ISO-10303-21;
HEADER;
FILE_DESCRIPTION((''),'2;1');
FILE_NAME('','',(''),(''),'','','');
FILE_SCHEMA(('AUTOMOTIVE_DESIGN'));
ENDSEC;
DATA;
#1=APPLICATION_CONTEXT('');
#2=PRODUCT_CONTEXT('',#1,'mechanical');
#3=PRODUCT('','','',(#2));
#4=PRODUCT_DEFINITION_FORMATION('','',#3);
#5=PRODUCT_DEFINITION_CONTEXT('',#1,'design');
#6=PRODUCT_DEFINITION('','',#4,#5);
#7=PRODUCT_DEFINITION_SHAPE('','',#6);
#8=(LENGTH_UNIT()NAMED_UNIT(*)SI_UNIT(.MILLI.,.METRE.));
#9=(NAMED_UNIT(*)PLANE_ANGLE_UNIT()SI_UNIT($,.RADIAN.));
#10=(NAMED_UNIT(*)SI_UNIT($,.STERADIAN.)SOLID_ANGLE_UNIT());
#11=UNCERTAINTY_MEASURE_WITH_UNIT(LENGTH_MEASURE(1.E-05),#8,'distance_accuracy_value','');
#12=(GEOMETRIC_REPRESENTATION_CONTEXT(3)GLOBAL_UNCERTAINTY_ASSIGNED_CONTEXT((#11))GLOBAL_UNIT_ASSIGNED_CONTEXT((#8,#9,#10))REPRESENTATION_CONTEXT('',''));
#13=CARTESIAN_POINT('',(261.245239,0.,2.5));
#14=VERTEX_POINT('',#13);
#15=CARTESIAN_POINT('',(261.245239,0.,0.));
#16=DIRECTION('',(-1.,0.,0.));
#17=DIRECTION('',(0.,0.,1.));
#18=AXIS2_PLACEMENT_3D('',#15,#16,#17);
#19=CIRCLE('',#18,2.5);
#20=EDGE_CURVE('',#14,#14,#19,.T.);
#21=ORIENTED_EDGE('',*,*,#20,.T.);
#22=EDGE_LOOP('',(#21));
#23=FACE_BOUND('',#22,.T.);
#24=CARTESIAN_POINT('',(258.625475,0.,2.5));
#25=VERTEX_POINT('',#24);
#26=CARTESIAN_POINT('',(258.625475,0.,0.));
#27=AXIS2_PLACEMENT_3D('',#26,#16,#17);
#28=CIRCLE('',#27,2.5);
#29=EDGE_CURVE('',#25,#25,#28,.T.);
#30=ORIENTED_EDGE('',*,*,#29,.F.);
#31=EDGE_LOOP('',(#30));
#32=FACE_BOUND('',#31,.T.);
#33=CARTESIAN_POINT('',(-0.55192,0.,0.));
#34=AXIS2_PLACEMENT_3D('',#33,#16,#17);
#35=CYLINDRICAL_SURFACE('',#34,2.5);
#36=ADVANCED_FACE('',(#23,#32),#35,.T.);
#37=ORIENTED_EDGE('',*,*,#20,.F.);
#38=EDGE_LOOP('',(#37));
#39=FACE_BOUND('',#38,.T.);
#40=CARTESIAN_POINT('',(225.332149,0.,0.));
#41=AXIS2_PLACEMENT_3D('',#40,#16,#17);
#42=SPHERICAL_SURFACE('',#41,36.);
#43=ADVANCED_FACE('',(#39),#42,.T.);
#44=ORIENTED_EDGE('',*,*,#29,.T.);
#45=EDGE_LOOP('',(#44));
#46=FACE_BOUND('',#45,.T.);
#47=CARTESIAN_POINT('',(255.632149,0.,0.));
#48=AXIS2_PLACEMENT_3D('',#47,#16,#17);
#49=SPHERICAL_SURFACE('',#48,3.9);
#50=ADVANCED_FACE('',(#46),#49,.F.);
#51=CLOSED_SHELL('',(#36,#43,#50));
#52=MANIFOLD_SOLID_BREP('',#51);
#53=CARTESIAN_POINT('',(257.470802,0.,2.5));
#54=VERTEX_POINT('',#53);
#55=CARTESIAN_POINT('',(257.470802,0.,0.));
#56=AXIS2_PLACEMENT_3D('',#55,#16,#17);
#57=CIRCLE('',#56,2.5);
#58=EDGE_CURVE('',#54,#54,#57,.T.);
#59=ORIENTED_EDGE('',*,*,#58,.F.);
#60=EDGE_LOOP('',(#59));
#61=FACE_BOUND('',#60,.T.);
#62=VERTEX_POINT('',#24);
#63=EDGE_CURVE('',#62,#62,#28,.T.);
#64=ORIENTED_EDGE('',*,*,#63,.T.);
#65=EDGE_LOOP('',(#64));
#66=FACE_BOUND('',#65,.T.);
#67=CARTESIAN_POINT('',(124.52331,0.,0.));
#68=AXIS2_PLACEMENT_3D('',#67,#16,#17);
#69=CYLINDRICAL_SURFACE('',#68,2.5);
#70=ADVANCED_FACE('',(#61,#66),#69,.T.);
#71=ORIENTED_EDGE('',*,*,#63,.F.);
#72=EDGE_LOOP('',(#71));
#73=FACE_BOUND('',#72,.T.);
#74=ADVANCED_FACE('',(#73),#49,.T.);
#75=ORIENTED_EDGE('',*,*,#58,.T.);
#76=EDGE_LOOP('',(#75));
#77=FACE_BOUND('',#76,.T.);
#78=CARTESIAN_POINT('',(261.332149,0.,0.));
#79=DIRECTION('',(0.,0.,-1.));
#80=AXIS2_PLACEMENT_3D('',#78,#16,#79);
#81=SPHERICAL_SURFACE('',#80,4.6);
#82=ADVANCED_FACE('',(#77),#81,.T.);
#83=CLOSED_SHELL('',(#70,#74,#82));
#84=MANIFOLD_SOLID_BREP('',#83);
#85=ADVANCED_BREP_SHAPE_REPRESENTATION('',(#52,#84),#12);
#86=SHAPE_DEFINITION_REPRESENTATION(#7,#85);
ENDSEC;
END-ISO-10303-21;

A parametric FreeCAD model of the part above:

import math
import FreeCAD as App
import Part
import Sketcher
from FreeCAD import Vector
Q = App.Units.Quantity

doc = App.newDocument("Part")
params = doc.addObject("Spreadsheet::Sheet", "Params")
for row, (alias, value) in enumerate([
    ("sketch1_radius", "4.6 mm"),
    ("sketch1_radius2", "3.9 mm"),
    ("sketch1_width", "2.8 mm"),
    ("revolution_angle", "360 deg"),
    ("sketch2_radius", "36.000001 mm"),
    ("sketch2_radius2", "3.9 mm"),
    ("sketch2_width", "1.8 mm"),
    ("revolution2_angle", "360 deg"),
], start=1):
    params.set(f"A{row}", alias)
    params.set(f"B{row}", "=" + value)
    params.setAlias(f"B{row}", alias)

body = doc.addObject("PartDesign::Body", "Body")

sketch1 = body.newObject("Sketcher::SketchObject", "Sketch")
sketch1.AttachmentSupport = (doc.getObject("XZ_Plane"), [""])
sketch1.MapMode = "FlatFace"
sketch1.addGeometry(Part.ArcOfCircle(Part.Circle(Vector(261.3, 0, 0), Vector(0, 0, 1), 4.6), math.radians(-180), math.radians(-147)), False)
sketch1.addGeometry(Part.LineSegment(Vector(256.7, 0, 0), Vector(259.5, 0, 0)), False)
sketch1.addGeometry(Part.ArcOfCircle(Part.Circle(Vector(255.6, 0, 0), Vector(0, 0, 1), 3.9), math.radians(-40), math.radians(0)), False)
sketch1.addGeometry(Part.LineSegment(Vector(258.6, -2.5, 0), Vector(257.5, -2.5, 0)), False)
sketch1.addConstraint(Sketcher.Constraint("Coincident", 0, 1, 1, 1))
sketch1.addConstraint(Sketcher.Constraint("Coincident", 1, 2, 2, 2))
sketch1.addConstraint(Sketcher.Constraint("Coincident", 2, 1, 3, 1))
sketch1.addConstraint(Sketcher.Constraint("Coincident", 3, 2, 0, 2))
sketch1.addConstraint(Sketcher.Constraint("Horizontal", 1))
sketch1.addConstraint(Sketcher.Constraint("Horizontal", 3))
sketch1.addConstraint(Sketcher.Constraint("PointOnObject", 0, 3, -1))
sketch1.addConstraint(Sketcher.Constraint("PointOnObject", 2, 3, -1))
sketch1.addConstraint(Sketcher.Constraint("PointOnObject", 0, 1, -1))
sketch1.addConstraint(Sketcher.Constraint("Radius", 0, Q("4.6 mm")))
sketch1.addConstraint(Sketcher.Constraint("Radius", 2, Q("3.9 mm")))
sketch1.addConstraint(Sketcher.Constraint("DistanceX", 1, 1, 1, 2, Q("2.8 mm")))
sketch1.addConstraint(Sketcher.Constraint("DistanceY", 2, 1, -1, 1, Q("2.5 mm")))
sketch1.addConstraint(Sketcher.Constraint("DistanceX", -1, 1, 0, 3, Q("261.332149 mm")))
sketch1.setExpression("Constraints[9]", "Params.sketch1_radius")
sketch1.setExpression("Constraints[10]", "Params.sketch1_radius2")
sketch1.setExpression("Constraints[11]", "Params.sketch1_width")
revolution = body.newObject("PartDesign::Revolution", "Revolution")
revolution.Profile = sketch1
revolution.ReferenceAxis = (sketch1, ["H_Axis"])
revolution.setExpression("Angle", "Params.revolution_angle")
body2 = doc.addObject("PartDesign::Body", "Body001")

sketch2 = body2.newObject("Sketcher::SketchObject", "Sketch001")
sketch2.AttachmentSupport = (doc.getObject("XZ_Plane001"), [""])
sketch2.MapMode = "FlatFace"
sketch2.addGeometry(Part.LineSegment(Vector(261.2, -2.5, 0), Vector(258.6, -2.5, 0)), False)
sketch2.addGeometry(Part.ArcOfCircle(Part.Circle(Vector(255.6, 0, 0), Vector(0, 0, 1), 3.9), math.radians(-40), math.radians(0)), False)
sketch2.addGeometry(Part.LineSegment(Vector(259.5, 0, 0), Vector(261.3, 0, 0)), False)
sketch2.addGeometry(Part.ArcOfCircle(Part.Circle(Vector(225.3, 0, 0), Vector(0, 0, 1), 36), math.radians(-3.98), math.radians(0)), False)
sketch2.addConstraint(Sketcher.Constraint("Coincident", 0, 2, 1, 1))
sketch2.addConstraint(Sketcher.Constraint("Coincident", 1, 2, 2, 1))
sketch2.addConstraint(Sketcher.Constraint("Coincident", 2, 2, 3, 2))
sketch2.addConstraint(Sketcher.Constraint("Coincident", 3, 1, 0, 1))
sketch2.addConstraint(Sketcher.Constraint("Horizontal", 0))
sketch2.addConstraint(Sketcher.Constraint("Horizontal", 2))
sketch2.addConstraint(Sketcher.Constraint("PointOnObject", 1, 3, -1))
sketch2.addConstraint(Sketcher.Constraint("PointOnObject", 3, 3, -1))
sketch2.addConstraint(Sketcher.Constraint("PointOnObject", 1, 2, -1))
sketch2.addConstraint(Sketcher.Constraint("Radius", 3, Q("36.000001 mm")))
sketch2.addConstraint(Sketcher.Constraint("Radius", 1, Q("3.9 mm")))
sketch2.addConstraint(Sketcher.Constraint("DistanceX", 2, 1, 2, 2, Q("1.8 mm")))
sketch2.addConstraint(Sketcher.Constraint("DistanceY", 0, 2, -1, 1, Q("2.5 mm")))
sketch2.addConstraint(Sketcher.Constraint("DistanceX", -1, 1, 1, 3, Q("255.632149 mm")))
sketch2.setExpression("Constraints[9]", "Params.sketch2_radius")
sketch2.setExpression("Constraints[10]", "Params.sketch2_radius2")
sketch2.setExpression("Constraints[11]", "Params.sketch2_width")
revolution2 = body2.newObject("PartDesign::Revolution", "Revolution001")
revolution2.Profile = sketch2
revolution2.ReferenceAxis = (sketch2, ["H_Axis"])
revolution2.setExpression("Angle", "Params.revolution2_angle")

doc.recompute()
